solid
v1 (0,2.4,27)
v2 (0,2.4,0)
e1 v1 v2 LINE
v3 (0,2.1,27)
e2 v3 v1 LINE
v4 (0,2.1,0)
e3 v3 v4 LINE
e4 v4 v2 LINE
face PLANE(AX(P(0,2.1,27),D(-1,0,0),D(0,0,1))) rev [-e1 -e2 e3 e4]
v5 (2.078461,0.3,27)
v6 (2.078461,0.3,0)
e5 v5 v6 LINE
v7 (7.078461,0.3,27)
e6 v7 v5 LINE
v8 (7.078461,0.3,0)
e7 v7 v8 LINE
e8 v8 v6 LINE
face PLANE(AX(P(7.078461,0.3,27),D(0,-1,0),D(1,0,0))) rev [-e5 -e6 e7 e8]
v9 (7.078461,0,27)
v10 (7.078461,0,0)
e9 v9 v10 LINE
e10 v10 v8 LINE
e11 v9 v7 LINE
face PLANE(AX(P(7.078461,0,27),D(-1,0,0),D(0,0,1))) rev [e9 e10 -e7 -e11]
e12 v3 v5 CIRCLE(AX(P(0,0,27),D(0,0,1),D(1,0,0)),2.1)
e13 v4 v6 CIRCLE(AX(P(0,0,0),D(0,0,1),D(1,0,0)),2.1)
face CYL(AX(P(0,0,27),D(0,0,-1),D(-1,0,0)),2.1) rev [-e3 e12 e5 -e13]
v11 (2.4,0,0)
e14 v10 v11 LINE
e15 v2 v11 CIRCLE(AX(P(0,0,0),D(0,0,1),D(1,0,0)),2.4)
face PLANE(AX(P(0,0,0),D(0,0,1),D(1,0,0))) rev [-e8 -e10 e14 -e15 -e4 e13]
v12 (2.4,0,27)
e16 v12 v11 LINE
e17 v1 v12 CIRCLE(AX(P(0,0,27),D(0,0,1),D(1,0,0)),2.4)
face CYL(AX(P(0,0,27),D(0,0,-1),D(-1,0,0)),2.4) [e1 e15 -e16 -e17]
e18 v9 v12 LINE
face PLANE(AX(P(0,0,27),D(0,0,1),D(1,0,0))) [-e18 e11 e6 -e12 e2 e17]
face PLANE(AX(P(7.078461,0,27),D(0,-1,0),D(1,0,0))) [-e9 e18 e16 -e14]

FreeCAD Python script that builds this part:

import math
import FreeCAD as App
import Part
import Sketcher

doc = App.newDocument("Part")
body = doc.addObject("PartDesign::Body", "Body")

# Sketch on XY plane
sketch1 = body.newObject("Sketcher::SketchObject", "Sketch")
sketch1.AttachmentSupport = (doc.getObject("XY_Plane"), [""])
sketch1.MapMode = "FlatFace"
sketch1.addGeometry([
    Part.LineSegment(App.Vector(2.4, 0, 0), App.Vector(7.078461, 0, 0)),  # 0
    Part.LineSegment(App.Vector(7.078461, 0, 0), App.Vector(7.078461, 0.3, 0)),  # 1
    Part.LineSegment(App.Vector(7.078461, 0.3, 0), App.Vector(2.078461, 0.3, 0)),  # 2
    Part.ArcOfCircle(Part.Circle(App.Vector(0, 0, 0), App.Vector(0, 0, 1), 2.1), math.radians(90), math.radians(368.213211)),  # 3
    Part.LineSegment(App.Vector(0, 2.1, 0), App.Vector(0, 2.4, 0)),  # 4
    Part.ArcOfCircle(Part.Circle(App.Vector(0, 0, 0), App.Vector(0, 0, 1), 2.4), math.radians(90), math.radians(360)),  # 5
], False)
sketch1.addConstraint([
    Sketcher.Constraint("Coincident", 0, 2, 1, 1),
    Sketcher.Constraint("Coincident", 1, 2, 2, 1),
    Sketcher.Constraint("Coincident", 2, 2, 3, 2),
    Sketcher.Constraint("Coincident", 3, 1, 4, 1),
    Sketcher.Constraint("Coincident", 4, 2, 5, 1),
    Sketcher.Constraint("Coincident", 5, 2, 0, 1),
    Sketcher.Constraint("Horizontal", 0),
    Sketcher.Constraint("Vertical", 1),
    Sketcher.Constraint("Horizontal", 2),
    Sketcher.Constraint("Vertical", 4),
    Sketcher.Constraint("Coincident", 3, 3, -1, 1),
    Sketcher.Constraint("Coincident", 5, 3, -1, 1),
    Sketcher.Constraint("PointOnObject", 0, 2, -1),
    Sketcher.Constraint("PointOnObject", 3, 1, -2),
    Sketcher.Constraint("Equal", 1, 4),
    Sketcher.Constraint("Radius", 3, 2.1),
    Sketcher.Constraint("Radius", 5, 2.4),
    Sketcher.Constraint("DistanceX", 2, 2, 2, 1, 5.0),
])
pad1 = body.newObject("PartDesign::Pad", "Pad")
pad1.Profile = sketch1
pad1.Length = 27

doc.recompute()
